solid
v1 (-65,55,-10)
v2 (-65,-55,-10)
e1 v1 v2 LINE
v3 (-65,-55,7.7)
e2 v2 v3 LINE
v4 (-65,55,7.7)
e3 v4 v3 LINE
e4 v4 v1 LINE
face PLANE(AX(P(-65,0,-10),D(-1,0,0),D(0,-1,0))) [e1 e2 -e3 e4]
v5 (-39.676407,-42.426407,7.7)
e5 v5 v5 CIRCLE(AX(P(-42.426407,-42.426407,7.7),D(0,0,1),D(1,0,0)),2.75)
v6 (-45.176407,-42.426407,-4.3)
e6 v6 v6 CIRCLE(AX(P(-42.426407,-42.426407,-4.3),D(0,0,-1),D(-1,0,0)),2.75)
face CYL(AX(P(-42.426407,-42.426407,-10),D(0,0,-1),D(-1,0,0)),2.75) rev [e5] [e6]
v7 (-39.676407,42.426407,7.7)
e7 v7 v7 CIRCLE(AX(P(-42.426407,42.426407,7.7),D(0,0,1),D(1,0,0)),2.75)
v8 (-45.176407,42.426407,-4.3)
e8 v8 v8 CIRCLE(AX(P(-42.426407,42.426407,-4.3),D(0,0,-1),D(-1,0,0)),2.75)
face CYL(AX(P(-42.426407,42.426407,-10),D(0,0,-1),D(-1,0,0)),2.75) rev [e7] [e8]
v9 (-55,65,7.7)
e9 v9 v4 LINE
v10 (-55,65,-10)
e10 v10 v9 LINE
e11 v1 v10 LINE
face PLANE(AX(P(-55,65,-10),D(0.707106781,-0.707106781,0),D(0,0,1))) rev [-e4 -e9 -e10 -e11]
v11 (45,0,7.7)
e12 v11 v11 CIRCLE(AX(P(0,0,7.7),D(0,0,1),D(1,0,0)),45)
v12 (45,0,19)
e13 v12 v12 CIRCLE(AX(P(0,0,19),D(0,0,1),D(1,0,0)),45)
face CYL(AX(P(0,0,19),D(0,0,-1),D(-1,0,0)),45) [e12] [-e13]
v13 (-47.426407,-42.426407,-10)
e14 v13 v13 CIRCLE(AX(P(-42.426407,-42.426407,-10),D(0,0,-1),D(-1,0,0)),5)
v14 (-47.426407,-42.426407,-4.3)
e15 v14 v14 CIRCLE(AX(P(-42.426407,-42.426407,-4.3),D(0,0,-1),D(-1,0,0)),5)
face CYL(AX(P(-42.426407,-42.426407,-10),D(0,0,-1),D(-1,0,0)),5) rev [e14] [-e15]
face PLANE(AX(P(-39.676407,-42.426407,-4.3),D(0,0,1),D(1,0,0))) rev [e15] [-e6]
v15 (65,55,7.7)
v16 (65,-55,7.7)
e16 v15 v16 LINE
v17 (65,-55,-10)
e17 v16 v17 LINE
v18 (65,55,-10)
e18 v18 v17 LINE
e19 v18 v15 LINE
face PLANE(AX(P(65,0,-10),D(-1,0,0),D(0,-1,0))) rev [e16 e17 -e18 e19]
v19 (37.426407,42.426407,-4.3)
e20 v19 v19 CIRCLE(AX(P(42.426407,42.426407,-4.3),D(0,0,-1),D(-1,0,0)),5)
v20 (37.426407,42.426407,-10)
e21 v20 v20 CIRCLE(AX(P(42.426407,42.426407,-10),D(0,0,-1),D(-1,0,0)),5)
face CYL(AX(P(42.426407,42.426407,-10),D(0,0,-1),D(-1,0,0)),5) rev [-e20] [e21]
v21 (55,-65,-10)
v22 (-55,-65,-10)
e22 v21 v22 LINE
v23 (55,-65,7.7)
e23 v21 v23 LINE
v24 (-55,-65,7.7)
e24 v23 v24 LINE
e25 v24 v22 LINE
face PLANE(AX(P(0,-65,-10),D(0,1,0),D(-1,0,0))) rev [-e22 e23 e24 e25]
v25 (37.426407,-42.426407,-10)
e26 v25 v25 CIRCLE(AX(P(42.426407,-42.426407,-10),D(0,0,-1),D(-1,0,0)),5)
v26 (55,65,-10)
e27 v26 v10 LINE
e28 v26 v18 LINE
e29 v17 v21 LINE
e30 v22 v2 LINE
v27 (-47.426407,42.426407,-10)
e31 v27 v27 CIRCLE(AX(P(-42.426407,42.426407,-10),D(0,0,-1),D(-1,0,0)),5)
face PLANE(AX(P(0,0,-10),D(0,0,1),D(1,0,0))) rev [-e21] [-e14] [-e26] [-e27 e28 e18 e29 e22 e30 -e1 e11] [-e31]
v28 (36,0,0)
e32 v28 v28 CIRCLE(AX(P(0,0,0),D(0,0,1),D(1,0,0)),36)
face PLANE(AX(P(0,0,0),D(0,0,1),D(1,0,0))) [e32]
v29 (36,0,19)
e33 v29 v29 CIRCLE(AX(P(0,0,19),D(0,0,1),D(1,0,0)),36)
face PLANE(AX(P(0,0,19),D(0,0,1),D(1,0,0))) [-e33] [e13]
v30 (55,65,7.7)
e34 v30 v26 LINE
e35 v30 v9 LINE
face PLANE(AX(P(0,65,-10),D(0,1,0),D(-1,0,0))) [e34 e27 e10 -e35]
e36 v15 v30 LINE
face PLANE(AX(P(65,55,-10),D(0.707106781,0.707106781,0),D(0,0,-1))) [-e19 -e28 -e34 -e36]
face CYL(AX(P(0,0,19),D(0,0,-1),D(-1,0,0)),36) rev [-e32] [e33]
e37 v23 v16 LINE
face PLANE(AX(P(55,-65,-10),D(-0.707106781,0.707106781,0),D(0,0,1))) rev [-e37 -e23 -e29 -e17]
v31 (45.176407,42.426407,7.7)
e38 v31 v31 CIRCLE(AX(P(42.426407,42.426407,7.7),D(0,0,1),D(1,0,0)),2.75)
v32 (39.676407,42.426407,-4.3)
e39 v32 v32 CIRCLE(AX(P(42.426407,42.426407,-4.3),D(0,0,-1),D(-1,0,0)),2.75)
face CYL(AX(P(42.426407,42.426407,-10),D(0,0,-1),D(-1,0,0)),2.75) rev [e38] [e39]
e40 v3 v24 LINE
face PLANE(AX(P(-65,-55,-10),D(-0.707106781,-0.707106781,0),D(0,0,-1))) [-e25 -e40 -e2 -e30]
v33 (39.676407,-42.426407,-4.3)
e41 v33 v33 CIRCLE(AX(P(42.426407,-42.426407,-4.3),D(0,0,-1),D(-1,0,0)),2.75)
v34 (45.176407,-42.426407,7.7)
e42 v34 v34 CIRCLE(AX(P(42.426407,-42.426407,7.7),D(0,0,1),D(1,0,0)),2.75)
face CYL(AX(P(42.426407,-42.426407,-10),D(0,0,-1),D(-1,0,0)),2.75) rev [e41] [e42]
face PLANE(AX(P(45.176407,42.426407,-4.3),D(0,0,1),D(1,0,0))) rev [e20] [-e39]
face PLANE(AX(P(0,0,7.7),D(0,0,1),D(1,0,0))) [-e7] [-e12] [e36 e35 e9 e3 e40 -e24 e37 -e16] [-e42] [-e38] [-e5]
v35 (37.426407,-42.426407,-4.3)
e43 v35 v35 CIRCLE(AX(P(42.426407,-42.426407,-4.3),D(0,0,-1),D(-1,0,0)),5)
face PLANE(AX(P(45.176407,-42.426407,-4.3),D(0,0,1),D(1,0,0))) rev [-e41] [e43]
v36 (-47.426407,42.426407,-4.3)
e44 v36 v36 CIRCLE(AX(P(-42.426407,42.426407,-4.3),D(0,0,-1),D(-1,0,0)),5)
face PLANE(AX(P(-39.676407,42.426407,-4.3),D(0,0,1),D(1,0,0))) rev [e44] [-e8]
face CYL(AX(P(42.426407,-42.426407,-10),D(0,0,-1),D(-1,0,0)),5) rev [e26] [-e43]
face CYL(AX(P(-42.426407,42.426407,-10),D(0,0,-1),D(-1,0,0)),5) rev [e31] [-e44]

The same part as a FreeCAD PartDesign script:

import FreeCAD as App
import Part
import Sketcher
Q = App.Units.Quantity


def edges_at(feature, points):
    """Names of the edges that pass closest to the given points."""
    edges = feature.Shape.Edges
    near = lambda p: min(range(len(edges)), key=lambda i: edges[i].distToShape(Part.Vertex(*p))[0])
    return sorted({f"Edge{near(p) + 1}" for p in points})


def add_polygon(sketch, points):
    """Adds a closed chain of lines whose ends are joined by coincident constraints."""
    first, n = sketch.GeometryCount, len(points)
    for a, b in zip(points, points[1:] + points[:1]):
        sketch.addGeometry(Part.LineSegment(App.Vector(*a, 0), App.Vector(*b, 0)), False)
    for i in range(n):
        sketch.addConstraint(Sketcher.Constraint("Coincident", first + i, 2, first + (i + 1) % n, 1))

doc = App.newDocument("Part")
body = doc.addObject("PartDesign::Body", "Body")

# Sketch on XY plane
sketch1 = body.newObject("Sketcher::SketchObject", "Sketch")
sketch1.AttachmentSupport = (doc.getObject("XY_Plane"), [""])
sketch1.MapMode = "FlatFace"
sketch1.addGeometry(Part.Circle(App.Vector(0, 0, 0), App.Vector(0, 0, 1), 45), False)
sketch1.addGeometry(Part.Circle(App.Vector(0, 0, 0), App.Vector(0, 0, 1), 36), False)
sketch1.addConstraint(Sketcher.Constraint("Coincident", 0, 3, -1, 1))
sketch1.addConstraint(Sketcher.Constraint("Coincident", 1, 3, -1, 1))
sketch1.addConstraint(Sketcher.Constraint("Diameter", 0, Q("90 mm")))
sketch1.addConstraint(Sketcher.Constraint("Diameter", 1, Q("72 mm")))
pad1 = body.newObject("PartDesign::Pad", "Pad")
pad1.Profile = sketch1
pad1.Length = 19

# Sketch on XY plane
sketch2 = body.newObject("Sketcher::SketchObject", "Sketch001")
sketch2.AttachmentSupport = (doc.getObject("XY_Plane"), [""])
sketch2.MapMode = "FlatFace"
sketch2.AttachmentOffset = App.Placement(App.Vector(0, 0, -10), App.Rotation())
add_polygon(sketch2, [(-65, 65), (-65, -65), (65, -65), (65, 65)])  # lines 0-3
sketch2.addGeometry(Part.Circle(App.Vector(-42.426407, -42.426407, 0), App.Vector(0, 0, 1), 2.5), False)  # 4
sketch2.addGeometry(Part.Circle(App.Vector(42.426407, -42.426407, 0), App.Vector(0, 0, 1), 2.5), False)  # 5
sketch2.addGeometry(Part.Circle(App.Vector(-42.426407, 42.426407, 0), App.Vector(0, 0, 1), 2.5), False)  # 6
sketch2.addGeometry(Part.Circle(App.Vector(42.426407, 42.426407, 0), App.Vector(0, 0, 1), 2.5), False)  # 7
sketch2.addConstraint(Sketcher.Constraint("Vertical", 0))
sketch2.addConstraint(Sketcher.Constraint("Horizontal", 1))
sketch2.addConstraint(Sketcher.Constraint("Vertical", 2))
sketch2.addConstraint(Sketcher.Constraint("Horizontal", 3))
sketch2.addConstraint(Sketcher.Constraint("Equal", 4, 5))
sketch2.addConstraint(Sketcher.Constraint("Equal", 5, 6))
sketch2.addConstraint(Sketcher.Constraint("Equal", 6, 7))
sketch2.addConstraint(Sketcher.Constraint("Symmetric", 5, 3, 6, 3, -1, 1))
sketch2.addConstraint(Sketcher.Constraint("Symmetric", 4, 3, 7, 3, -1, 1))
sketch2.addConstraint(Sketcher.Constraint("Symmetric", 0, 2, 2, 2, -1, 1))
sketch2.addConstraint(Sketcher.Constraint("Symmetric", 4, 3, 5, 3, -2))
sketch2.addConstraint(Sketcher.Constraint("Equal", 3, 0))
sketch2.addConstraint(Sketcher.Constraint("Diameter", 4, Q("5 mm")))
sketch2.addConstraint(Sketcher.Constraint("DistanceX", 1, 1, 1, 2, Q("130 mm")))
sketch2.addConstraint(Sketcher.Constraint("DistanceX", 4, 3, -1, 1, Q("42.426407 mm")))
sketch2.addConstraint(Sketcher.Constraint("DistanceY", 4, 3, -1, 1, Q("42.426407 mm")))
pad2 = body.newObject("PartDesign::Pad", "Pad001")
pad2.Profile = sketch2
pad2.Length = 10

# Sketch on XY plane
sketch3 = body.newObject("Sketcher::SketchObject", "Sketch002")
sketch3.AttachmentSupport = (doc.getObject("XY_Plane"), [""])
sketch3.MapMode = "FlatFace"
add_polygon(sketch3, [(-65, 65), (-65, -65), (65, -65), (65, 65)])  # lines 0-3
sketch3.addGeometry(Part.Circle(App.Vector(-42.426407, -42.426407, 0), App.Vector(0, 0, 1), 2.5), False)  # 4
sketch3.addGeometry(Part.Circle(App.Vector(42.426407, -42.426407, 0), App.Vector(0, 0, 1), 2.5), False)  # 5
sketch3.addGeometry(Part.Circle(App.Vector(-42.426407, 42.426407, 0), App.Vector(0, 0, 1), 2.5), False)  # 6
sketch3.addGeometry(Part.Circle(App.Vector(0, 0, 0), App.Vector(0, 0, 1), 45), False)  # 7
sketch3.addGeometry(Part.Circle(App.Vector(42.426407, 42.426407, 0), App.Vector(0, 0, 1), 2.5), False)  # 8
sketch3.addConstraint(Sketcher.Constraint("Vertical", 0))
sketch3.addConstraint(Sketcher.Constraint("Horizontal", 1))
sketch3.addConstraint(Sketcher.Constraint("Vertical", 2))
sketch3.addConstraint(Sketcher.Constraint("Horizontal", 3))
sketch3.addConstraint(Sketcher.Constraint("Coincident", 7, 3, -1, 1))
sketch3.addConstraint(Sketcher.Constraint("Equal", 4, 5))
sketch3.addConstraint(Sketcher.Constraint("Equal", 5, 6))
sketch3.addConstraint(Sketcher.Constraint("Equal", 6, 8))
sketch3.addConstraint(Sketcher.Constraint("Symmetric", 5, 3, 6, 3, -1, 1))
sketch3.addConstraint(Sketcher.Constraint("Symmetric", 4, 3, 8, 3, -1, 1))
sketch3.addConstraint(Sketcher.Constraint("Symmetric", 0, 2, 2, 2, -1, 1))
sketch3.addConstraint(Sketcher.Constraint("Symmetric", 4, 3, 5, 3, -2))
sketch3.addConstraint(Sketcher.Constraint("Equal", 3, 0))
sketch3.addConstraint(Sketcher.Constraint("Diameter", 4, Q("5 mm")))
sketch3.addConstraint(Sketcher.Constraint("Diameter", 7, Q("90 mm")))
sketch3.addConstraint(Sketcher.Constraint("DistanceX", 1, 1, 1, 2, Q("130 mm")))
sketch3.addConstraint(Sketcher.Constraint("DistanceX", 4, 3, -1, 1, Q("42.426407 mm")))
sketch3.addConstraint(Sketcher.Constraint("DistanceY", 4, 3, -1, 1, Q("42.426407 mm")))
pad3 = body.newObject("PartDesign::Pad", "Pad002")
pad3.Profile = sketch3
pad3.Length = 7.7

# Sketch on XY plane
sketch4 = body.newObject("Sketcher::SketchObject", "Sketch003")
sketch4.AttachmentSupport = (doc.getObject("XY_Plane"), [""])
sketch4.MapMode = "FlatFace"
sketch4.AttachmentOffset = App.Placement(App.Vector(0, 0, -10), App.Rotation())
sketch4.addGeometry(Part.Circle(App.Vector(-42.426407, 42.426407, 0), App.Vector(0, 0, 1), 2.75), False)
sketch4.addGeometry(Part.Circle(App.Vector(42.426407, 42.426407, 0), App.Vector(0, 0, 1), 2.75), False)
sketch4.addGeometry(Part.Circle(App.Vector(-42.426407, -42.426407, 0), App.Vector(0, 0, 1), 2.75), False)
sketch4.addGeometry(Part.Circle(App.Vector(42.426407, -42.426407, 0), App.Vector(0, 0, 1), 2.75), False)
sketch4.addConstraint(Sketcher.Constraint("Equal", 0, 1))
sketch4.addConstraint(Sketcher.Constraint("Equal", 1, 2))
sketch4.addConstraint(Sketcher.Constraint("Equal", 2, 3))
sketch4.addConstraint(Sketcher.Constraint("Symmetric", 1, 3, 2, 3, -1, 1))
sketch4.addConstraint(Sketcher.Constraint("Symmetric", 0, 3, 3, 3, -1, 1))
sketch4.addConstraint(Sketcher.Constraint("Symmetric", 0, 3, 1, 3, -2))
sketch4.addConstraint(Sketcher.Constraint("Diameter", 0, Q("5.5 mm")))
sketch4.addConstraint(Sketcher.Constraint("DistanceX", 0, 3, -1, 1, Q("42.426407 mm")))
sketch4.addConstraint(Sketcher.Constraint("DistanceY", -1, 1, 0, 3, Q("42.426407 mm")))
doc.recompute()
hole = body.newObject("PartDesign::Hole", "Hole")
hole.Profile = sketch4
hole.ThreadType = "None"
hole.Diameter = 5.5
hole.DepthType = "ThroughAll"
hole.HoleCutType = "Counterbore"
hole.HoleCutDiameter = 10
hole.HoleCutDepth = 5.7
hole.Reversed = True
doc.recompute()

chamfer = body.newObject("PartDesign::Chamfer", "Chamfer")
chamfer.Base = (hole, edges_at(hole, [
    (-65, -65, -1.15),
    (-65, 65, -1.15),
    (65, 65, -1.15),
    (65, -65, -1.15),
]))
chamfer.Size = 10

doc.recompute()
